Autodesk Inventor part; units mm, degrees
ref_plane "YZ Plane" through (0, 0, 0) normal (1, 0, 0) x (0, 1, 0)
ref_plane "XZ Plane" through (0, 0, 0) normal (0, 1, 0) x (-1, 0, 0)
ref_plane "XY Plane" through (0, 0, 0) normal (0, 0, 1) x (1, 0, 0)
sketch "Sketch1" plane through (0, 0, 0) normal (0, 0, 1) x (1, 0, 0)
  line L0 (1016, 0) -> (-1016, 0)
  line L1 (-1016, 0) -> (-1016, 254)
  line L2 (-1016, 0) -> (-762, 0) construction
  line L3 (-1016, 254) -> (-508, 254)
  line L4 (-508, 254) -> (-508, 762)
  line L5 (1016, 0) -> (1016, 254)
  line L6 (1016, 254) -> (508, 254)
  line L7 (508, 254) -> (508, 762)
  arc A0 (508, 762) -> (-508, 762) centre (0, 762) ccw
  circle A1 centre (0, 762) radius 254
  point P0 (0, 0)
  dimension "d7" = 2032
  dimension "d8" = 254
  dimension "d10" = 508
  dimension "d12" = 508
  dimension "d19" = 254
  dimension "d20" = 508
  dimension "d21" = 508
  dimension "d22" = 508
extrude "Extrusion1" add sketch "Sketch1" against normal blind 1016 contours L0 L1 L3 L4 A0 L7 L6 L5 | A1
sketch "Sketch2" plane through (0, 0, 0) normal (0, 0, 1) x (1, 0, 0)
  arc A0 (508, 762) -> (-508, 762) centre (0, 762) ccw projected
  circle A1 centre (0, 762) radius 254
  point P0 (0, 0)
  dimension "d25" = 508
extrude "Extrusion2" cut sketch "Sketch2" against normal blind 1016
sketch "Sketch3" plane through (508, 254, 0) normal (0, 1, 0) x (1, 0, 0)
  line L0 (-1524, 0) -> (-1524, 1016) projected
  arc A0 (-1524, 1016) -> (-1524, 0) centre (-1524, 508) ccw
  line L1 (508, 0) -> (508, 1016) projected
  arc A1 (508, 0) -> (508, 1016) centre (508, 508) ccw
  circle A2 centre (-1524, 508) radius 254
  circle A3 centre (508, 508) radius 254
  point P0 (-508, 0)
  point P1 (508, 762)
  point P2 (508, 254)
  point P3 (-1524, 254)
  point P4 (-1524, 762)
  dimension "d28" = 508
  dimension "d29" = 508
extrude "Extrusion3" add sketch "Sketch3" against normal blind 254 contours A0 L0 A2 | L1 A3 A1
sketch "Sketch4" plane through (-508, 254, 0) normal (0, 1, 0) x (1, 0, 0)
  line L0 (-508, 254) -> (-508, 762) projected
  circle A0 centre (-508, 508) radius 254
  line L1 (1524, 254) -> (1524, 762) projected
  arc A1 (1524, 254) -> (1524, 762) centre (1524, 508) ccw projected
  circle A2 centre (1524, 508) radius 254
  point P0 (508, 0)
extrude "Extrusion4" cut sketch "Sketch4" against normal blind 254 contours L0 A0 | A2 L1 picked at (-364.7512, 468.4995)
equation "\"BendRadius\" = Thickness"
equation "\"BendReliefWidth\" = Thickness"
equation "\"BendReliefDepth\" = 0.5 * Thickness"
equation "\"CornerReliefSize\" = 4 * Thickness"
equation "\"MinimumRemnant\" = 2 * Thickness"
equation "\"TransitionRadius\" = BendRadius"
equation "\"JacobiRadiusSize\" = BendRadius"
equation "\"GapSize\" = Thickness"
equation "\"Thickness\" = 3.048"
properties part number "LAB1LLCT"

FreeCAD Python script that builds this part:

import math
import FreeCAD as App
import Part
import Sketcher
from FreeCAD import Vector
Q = App.Units.Quantity

doc = App.newDocument("Part")
params = doc.addObject("Spreadsheet::Sheet", "Params")
for row, (alias, value) in enumerate([
    ("sketch1_radius", "20 in"),
    ("sketch1_width", "80 in"),
    ("sketch1_height", "10 in"),
    ("pad1_length", "40 in"),
    ("sketch2_diameter", "20 in"),
    ("pocket1_length", "40 in"),
    ("sketch3_radius", "20 in"),
    ("sketch3_radius2", "10 in"),
    ("pad2_length", "10 in"),
    ("sketch4_radius", "10 in"),
    ("pocket2_length", "10 in"),
], start=1):
    params.set(f"A{row}", alias)
    params.set(f"B{row}", "=" + value)
    params.setAlias(f"B{row}", alias)

body = doc.addObject("PartDesign::Body", "Body")

sketch1 = body.newObject("Sketcher::SketchObject", "Sketch")
sketch1.AttachmentSupport = (doc.getObject("XY_Plane"), [""])
sketch1.MapMode = "FlatFace"
sketch1.addGeometry(Part.LineSegment(Vector(-1016, 0, 0), Vector(1016, 0, 0)), False)
sketch1.addGeometry(Part.LineSegment(Vector(1016, 0, 0), Vector(1016, 254, 0)), False)
sketch1.addGeometry(Part.LineSegment(Vector(1016, 254, 0), Vector(508, 254, 0)), False)
sketch1.addGeometry(Part.LineSegment(Vector(508, 254, 0), Vector(508, 762, 0)), False)
sketch1.addGeometry(Part.ArcOfCircle(Part.Circle(Vector(0, 762, 0), Vector(0, 0, 1), 508), math.radians(0), math.radians(180)), False)
sketch1.addGeometry(Part.LineSegment(Vector(-508, 762, 0), Vector(-508, 254, 0)), False)
sketch1.addGeometry(Part.LineSegment(Vector(-508, 254, 0), Vector(-1016, 254, 0)), False)
sketch1.addGeometry(Part.LineSegment(Vector(-1016, 254, 0), Vector(-1016, 0, 0)), False)
sketch1.addConstraint(Sketcher.Constraint("Coincident", 0, 2, 1, 1))
sketch1.addConstraint(Sketcher.Constraint("Coincident", 1, 2, 2, 1))
sketch1.addConstraint(Sketcher.Constraint("Coincident", 2, 2, 3, 1))
sketch1.addConstraint(Sketcher.Constraint("Tangent", 3, 2, 4, 1))
sketch1.addConstraint(Sketcher.Constraint("Tangent", 4, 2, 5, 1))
sketch1.addConstraint(Sketcher.Constraint("Coincident", 5, 2, 6, 1))
sketch1.addConstraint(Sketcher.Constraint("Coincident", 6, 2, 7, 1))
sketch1.addConstraint(Sketcher.Constraint("Coincident", 7, 2, 0, 1))
sketch1.addConstraint(Sketcher.Constraint("Horizontal", 0))
sketch1.addConstraint(Sketcher.Constraint("Vertical", 1))
sketch1.addConstraint(Sketcher.Constraint("Horizontal", 2))
sketch1.addConstraint(Sketcher.Constraint("Vertical", 3))
sketch1.addConstraint(Sketcher.Constraint("Vertical", 5))
sketch1.addConstraint(Sketcher.Constraint("Horizontal", 6))
sketch1.addConstraint(Sketcher.Constraint("Vertical", 7))
sketch1.addConstraint(Sketcher.Constraint("Symmetric", 0, 2, 7, 2, -1, 1))
sketch1.addConstraint(Sketcher.Constraint("Symmetric", 2, 2, 5, 2, -2))
sketch1.addConstraint(Sketcher.Constraint("Equal", 6, 3))
sketch1.addConstraint(Sketcher.Constraint("Radius", 4, Q("20 in")))
sketch1.addConstraint(Sketcher.Constraint("DistanceX", 0, 1, 0, 2, Q("80 in")))
sketch1.addConstraint(Sketcher.Constraint("DistanceY", 1, 1, 1, 2, Q("10 in")))
sketch1.setExpression("Constraints[18]", "Params.sketch1_radius")
sketch1.setExpression("Constraints[19]", "Params.sketch1_width")
sketch1.setExpression("Constraints[20]", "Params.sketch1_height")
pad1 = body.newObject("PartDesign::Pad", "Pad")
pad1.Profile = sketch1
pad1.setExpression("Length", "Params.pad1_length")
pad1.Reversed = True

sketch2 = body.newObject("Sketcher::SketchObject", "Sketch001")
sketch2.AttachmentSupport = (doc.getObject("XY_Plane"), [""])
sketch2.MapMode = "FlatFace"
sketch2.addGeometry(Part.Circle(Vector(0, 762, 0), Vector(0, 0, 1), 254), False)
sketch2.addConstraint(Sketcher.Constraint("PointOnObject", 0, 3, -2))
sketch2.addConstraint(Sketcher.Constraint("Diameter", 0, Q("20 in")))
sketch2.addConstraint(Sketcher.Constraint("DistanceY", -1, 1, 0, 3, Q("30 in")))
sketch2.setExpression("Constraints[1]", "Params.sketch2_diameter")
pocket1 = body.newObject("PartDesign::Pocket", "Pocket")
pocket1.Profile = sketch2
pocket1.setExpression("Length", "Params.pocket1_length")

sketch3 = body.newObject("Sketcher::SketchObject", "Sketch002")
sketch3.AttachmentSupport = (doc.getObject("XZ_Plane"), [""])
sketch3.MapMode = "FlatFace"
sketch3.AttachmentOffset = App.Placement(Vector(0, 0, -10 * 25.4), App.Rotation())
sketch3.addGeometry(Part.ArcOfCircle(Part.Circle(Vector(-1016, -508, 0), Vector(0, 0, 1), 508), math.radians(90), math.radians(270)), False)
sketch3.addGeometry(Part.LineSegment(Vector(-1016, 0, 0), Vector(-1016, -254, 0)), False)
sketch3.addGeometry(Part.ArcOfCircle(Part.Circle(Vector(-1016, -508, 0), Vector(0, 0, 1), 254), math.radians(90), math.radians(270)), False)
sketch3.addGeometry(Part.LineSegment(Vector(-1016, -762, 0), Vector(-1016, -1016, 0)), False)
sketch3.addGeometry(Part.LineSegment(Vector(1016, -254, 0), Vector(1016, 0, 0)), False)
sketch3.addGeometry(Part.ArcOfCircle(Part.Circle(Vector(1016, -508, 0), Vector(0, 0, 1), 508), math.radians(-90), math.radians(90)), False)
sketch3.addGeometry(Part.LineSegment(Vector(1016, -1016, 0), Vector(1016, -762, 0)), False)
sketch3.addGeometry(Part.ArcOfCircle(Part.Circle(Vector(1016, -508, 0), Vector(0, 0, 1), 254), math.radians(-90), math.radians(90)), False)
sketch3.addConstraint(Sketcher.Constraint("Coincident", 0, 1, 1, 1))
sketch3.addConstraint(Sketcher.Constraint("Coincident", 1, 2, 2, 1))
sketch3.addConstraint(Sketcher.Constraint("Coincident", 2, 2, 3, 1))
sketch3.addConstraint(Sketcher.Constraint("Coincident", 3, 2, 0, 2))
sketch3.addConstraint(Sketcher.Constraint("Coincident", 4, 2, 5, 2))
sketch3.addConstraint(Sketcher.Constraint("Coincident", 5, 1, 6, 1))
sketch3.addConstraint(Sketcher.Constraint("Coincident", 6, 2, 7, 1))
sketch3.addConstraint(Sketcher.Constraint("Coincident", 7, 2, 4, 1))
sketch3.addConstraint(Sketcher.Constraint("Vertical", 1))
sketch3.addConstraint(Sketcher.Constraint("Vertical", 3))
sketch3.addConstraint(Sketcher.Constraint("Vertical", 4))
sketch3.addConstraint(Sketcher.Constraint("Vertical", 6))
sketch3.addConstraint(Sketcher.Constraint("Coincident", 2, 3, 0, 3))
sketch3.addConstraint(Sketcher.Constraint("Coincident", 7, 3, 5, 3))
sketch3.addConstraint(Sketcher.Constraint("Equal", 0, 5))
sketch3.addConstraint(Sketcher.Constraint("Equal", 2, 7))
sketch3.addConstraint(Sketcher.Constraint("Symmetric", 0, 3, 5, 3, -2))
sketch3.addConstraint(Sketcher.Constraint("PointOnObject", 0, 1, -1))
sketch3.addConstraint(Sketcher.Constraint("Vertical", 1, 2, 2, 2))
sketch3.addConstraint(Sketcher.Constraint("Vertical", 7, 3, 4, 2))
sketch3.addConstraint(Sketcher.Constraint("Vertical", 6, 2, 7, 2))
sketch3.addConstraint(Sketcher.Constraint("Radius", 0, Q("20 in")))
sketch3.addConstraint(Sketcher.Constraint("Radius", 2, Q("10 in")))
sketch3.addConstraint(Sketcher.Constraint("DistanceX", 0, 3, -1, 1, Q("40 in")))
sketch3.addConstraint(Sketcher.Constraint("DistanceX", 1, 2, -1, 1, Q("40 in")))
sketch3.setExpression("Constraints[21]", "Params.sketch3_radius")
sketch3.setExpression("Constraints[22]", "Params.sketch3_radius2")
pad2 = body.newObject("PartDesign::Pad", "Pad001")
pad2.Profile = sketch3
pad2.setExpression("Length", "Params.pad2_length")

sketch4 = body.newObject("Sketcher::SketchObject", "Sketch003")
sketch4.AttachmentSupport = (doc.getObject("XZ_Plane"), [""])
sketch4.MapMode = "FlatFace"
sketch4.AttachmentOffset = App.Placement(Vector(0, 0, -10 * 25.4), App.Rotation())
sketch4.addGeometry(Part.LineSegment(Vector(-1016, -762, 0), Vector(-1016, -254, 0)), False)
sketch4.addGeometry(Part.ArcOfCircle(Part.Circle(Vector(-1016, -508, 0), Vector(0, 0, 1), 254), math.radians(-90), math.radians(90)), False)
sketch4.addGeometry(Part.ArcOfCircle(Part.Circle(Vector(1016, -508, 0), Vector(0, 0, 1), 254), math.radians(90), math.radians(270)), False)
sketch4.addGeometry(Part.LineSegment(Vector(1016, -254, 0), Vector(1016, -762, 0)), False)
sketch4.addConstraint(Sketcher.Constraint("Coincident", 0, 1, 1, 1))
sketch4.addConstraint(Sketcher.Constraint("Coincident", 1, 2, 0, 2))
sketch4.addConstraint(Sketcher.Constraint("Coincident", 2, 1, 3, 1))
sketch4.addConstraint(Sketcher.Constraint("Coincident", 3, 2, 2, 2))
sketch4.addConstraint(Sketcher.Constraint("Vertical", 0))
sketch4.addConstraint(Sketcher.Constraint("Vertical", 3))
sketch4.addConstraint(Sketcher.Constraint("Equal", 1, 2))
sketch4.addConstraint(Sketcher.Constraint("Symmetric", 1, 3, 2, 3, -2))
sketch4.addConstraint(Sketcher.Constraint("Vertical", 1, 3, 0, 1))
sketch4.addConstraint(Sketcher.Constraint("Radius", 1, Q("10 in")))
sketch4.addConstraint(Sketcher.Constraint("DistanceX", 1, 3, -1, 1, Q("40 in")))
sketch4.addConstraint(Sketcher.Constraint("DistanceY", 1, 3, -1, 1, Q("20 in")))
sketch4.addConstraint(Sketcher.Constraint("DistanceX", -1, 1, 2, 1, Q("40 in")))
sketch4.setExpression("Constraints[9]", "Params.sketch4_radius")
pocket2 = body.newObject("PartDesign::Pocket", "Pocket001")
pocket2.Profile = sketch4
pocket2.setExpression("Length", "Params.pocket2_length")
pocket2.Reversed = True

doc.recompute()
